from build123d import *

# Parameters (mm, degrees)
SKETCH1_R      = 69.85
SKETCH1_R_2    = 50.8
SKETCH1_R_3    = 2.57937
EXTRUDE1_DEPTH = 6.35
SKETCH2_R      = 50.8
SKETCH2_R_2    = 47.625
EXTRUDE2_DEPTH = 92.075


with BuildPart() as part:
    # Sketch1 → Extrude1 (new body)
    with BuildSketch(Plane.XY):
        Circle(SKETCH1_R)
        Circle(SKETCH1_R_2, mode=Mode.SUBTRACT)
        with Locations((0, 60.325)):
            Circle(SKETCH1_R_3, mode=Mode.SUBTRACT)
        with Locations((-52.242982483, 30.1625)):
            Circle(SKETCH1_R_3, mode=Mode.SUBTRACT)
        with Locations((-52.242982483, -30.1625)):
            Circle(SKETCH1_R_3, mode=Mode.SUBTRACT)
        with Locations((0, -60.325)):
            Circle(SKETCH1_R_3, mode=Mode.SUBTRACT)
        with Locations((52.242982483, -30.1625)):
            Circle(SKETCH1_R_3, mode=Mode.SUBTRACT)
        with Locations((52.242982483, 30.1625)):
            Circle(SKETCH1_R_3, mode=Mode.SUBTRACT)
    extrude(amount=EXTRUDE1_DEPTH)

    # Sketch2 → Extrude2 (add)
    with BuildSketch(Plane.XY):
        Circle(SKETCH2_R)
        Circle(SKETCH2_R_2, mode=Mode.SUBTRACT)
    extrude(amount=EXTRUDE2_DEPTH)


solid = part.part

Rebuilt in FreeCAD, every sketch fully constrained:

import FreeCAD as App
import Part
import Sketcher
from FreeCAD import Vector
Q = App.Units.Quantity

doc = App.newDocument("Part")
body = doc.addObject("PartDesign::Body", "Body")

# Sketch on XY plane
sketch1 = body.newObject("Sketcher::SketchObject", "Sketch")
sketch1.AttachmentSupport = (doc.getObject("XY_Plane"), [""])
sketch1.MapMode = "FlatFace"
sketch1.addGeometry(Part.Circle(Vector(0, 0, 0), Vector(0, 0, 1), 69.8), False)
sketch1.addGeometry(Part.Circle(Vector(-52.2, -30.2, 0), Vector(0, 0, 1), 2.6), False)
sketch1.addGeometry(Part.Circle(Vector(0, -60.3, 0), Vector(0, 0, 1), 2.6), False)
sketch1.addGeometry(Part.Circle(Vector(52.2, -30.2, 0), Vector(0, 0, 1), 2.6), False)
sketch1.addGeometry(Part.Circle(Vector(-52.2, 30.2, 0), Vector(0, 0, 1), 2.6), False)
sketch1.addGeometry(Part.Circle(Vector(0, 0, 0), Vector(0, 0, 1), 50.8), False)
sketch1.addGeometry(Part.Circle(Vector(52.2, 30.2, 0), Vector(0, 0, 1), 2.6), False)
sketch1.addGeometry(Part.Circle(Vector(0, 60.3, 0), Vector(0, 0, 1), 2.6), False)
sketch1.addConstraint(Sketcher.Constraint("Coincident", 0, 3, -1, 1))
sketch1.addConstraint(Sketcher.Constraint("Coincident", 5, 3, -1, 1))
sketch1.addConstraint(Sketcher.Constraint("Equal", 1, 2))
sketch1.addConstraint(Sketcher.Constraint("Equal", 2, 3))
sketch1.addConstraint(Sketcher.Constraint("Equal", 3, 4))
sketch1.addConstraint(Sketcher.Constraint("Equal", 4, 6))
sketch1.addConstraint(Sketcher.Constraint("Equal", 6, 7))
sketch1.addConstraint(Sketcher.Constraint("Symmetric", 3, 3, 4, 3, -1, 1))
sketch1.addConstraint(Sketcher.Constraint("Symmetric", 1, 3, 6, 3, -1, 1))
sketch1.addConstraint(Sketcher.Constraint("Symmetric", 2, 3, 7, 3, -1, 1))
sketch1.addConstraint(Sketcher.Constraint("Symmetric", 1, 3, 3, 3, -2))
sketch1.addConstraint(Sketcher.Constraint("PointOnObject", 2, 3, -2))
sketch1.addConstraint(Sketcher.Constraint("Diameter", 5, Q("4 in")))
sketch1.addConstraint(Sketcher.Constraint("Diameter", 0, Q("5.5 in")))
sketch1.addConstraint(Sketcher.Constraint("Diameter", 1, Q("0.2031 in")))
sketch1.addConstraint(Sketcher.Constraint("DistanceY", 1, 3, -1, 1, Q("1.1875 in")))
sketch1.addConstraint(Sketcher.Constraint("DistanceY", 2, 3, -1, 1, Q("2.375 in")))
sketch1.addConstraint(Sketcher.Constraint("DistanceX", 1, 3, -1, 1, Q("52.242982 mm")))
pad1 = body.newObject("PartDesign::Pad", "Pad")
pad1.Profile = sketch1
pad1.Length = Q("0.25 in")

# Sketch on XY plane
sketch2 = body.newObject("Sketcher::SketchObject", "Sketch001")
sketch2.AttachmentSupport = (doc.getObject("XY_Plane"), [""])
sketch2.MapMode = "FlatFace"
sketch2.addGeometry(Part.Circle(Vector(0, 0, 0), Vector(0, 0, 1), 51), False)
sketch2.addGeometry(Part.Circle(Vector(0, 0, 0), Vector(0, 0, 1), 48), False)
sketch2.addConstraint(Sketcher.Constraint("Coincident", 0, 3, -1, 1))
sketch2.addConstraint(Sketcher.Constraint("Coincident", 1, 3, -1, 1))
sketch2.addConstraint(Sketcher.Constraint("Diameter", 0, Q("4 in")))
sketch2.addConstraint(Sketcher.Constraint("Diameter", 1, Q("3.75 in")))
pad2 = body.newObject("PartDesign::Pad", "Pad001")
pad2.Profile = sketch2
pad2.Length = Q("3.625 in")

doc.recompute()
